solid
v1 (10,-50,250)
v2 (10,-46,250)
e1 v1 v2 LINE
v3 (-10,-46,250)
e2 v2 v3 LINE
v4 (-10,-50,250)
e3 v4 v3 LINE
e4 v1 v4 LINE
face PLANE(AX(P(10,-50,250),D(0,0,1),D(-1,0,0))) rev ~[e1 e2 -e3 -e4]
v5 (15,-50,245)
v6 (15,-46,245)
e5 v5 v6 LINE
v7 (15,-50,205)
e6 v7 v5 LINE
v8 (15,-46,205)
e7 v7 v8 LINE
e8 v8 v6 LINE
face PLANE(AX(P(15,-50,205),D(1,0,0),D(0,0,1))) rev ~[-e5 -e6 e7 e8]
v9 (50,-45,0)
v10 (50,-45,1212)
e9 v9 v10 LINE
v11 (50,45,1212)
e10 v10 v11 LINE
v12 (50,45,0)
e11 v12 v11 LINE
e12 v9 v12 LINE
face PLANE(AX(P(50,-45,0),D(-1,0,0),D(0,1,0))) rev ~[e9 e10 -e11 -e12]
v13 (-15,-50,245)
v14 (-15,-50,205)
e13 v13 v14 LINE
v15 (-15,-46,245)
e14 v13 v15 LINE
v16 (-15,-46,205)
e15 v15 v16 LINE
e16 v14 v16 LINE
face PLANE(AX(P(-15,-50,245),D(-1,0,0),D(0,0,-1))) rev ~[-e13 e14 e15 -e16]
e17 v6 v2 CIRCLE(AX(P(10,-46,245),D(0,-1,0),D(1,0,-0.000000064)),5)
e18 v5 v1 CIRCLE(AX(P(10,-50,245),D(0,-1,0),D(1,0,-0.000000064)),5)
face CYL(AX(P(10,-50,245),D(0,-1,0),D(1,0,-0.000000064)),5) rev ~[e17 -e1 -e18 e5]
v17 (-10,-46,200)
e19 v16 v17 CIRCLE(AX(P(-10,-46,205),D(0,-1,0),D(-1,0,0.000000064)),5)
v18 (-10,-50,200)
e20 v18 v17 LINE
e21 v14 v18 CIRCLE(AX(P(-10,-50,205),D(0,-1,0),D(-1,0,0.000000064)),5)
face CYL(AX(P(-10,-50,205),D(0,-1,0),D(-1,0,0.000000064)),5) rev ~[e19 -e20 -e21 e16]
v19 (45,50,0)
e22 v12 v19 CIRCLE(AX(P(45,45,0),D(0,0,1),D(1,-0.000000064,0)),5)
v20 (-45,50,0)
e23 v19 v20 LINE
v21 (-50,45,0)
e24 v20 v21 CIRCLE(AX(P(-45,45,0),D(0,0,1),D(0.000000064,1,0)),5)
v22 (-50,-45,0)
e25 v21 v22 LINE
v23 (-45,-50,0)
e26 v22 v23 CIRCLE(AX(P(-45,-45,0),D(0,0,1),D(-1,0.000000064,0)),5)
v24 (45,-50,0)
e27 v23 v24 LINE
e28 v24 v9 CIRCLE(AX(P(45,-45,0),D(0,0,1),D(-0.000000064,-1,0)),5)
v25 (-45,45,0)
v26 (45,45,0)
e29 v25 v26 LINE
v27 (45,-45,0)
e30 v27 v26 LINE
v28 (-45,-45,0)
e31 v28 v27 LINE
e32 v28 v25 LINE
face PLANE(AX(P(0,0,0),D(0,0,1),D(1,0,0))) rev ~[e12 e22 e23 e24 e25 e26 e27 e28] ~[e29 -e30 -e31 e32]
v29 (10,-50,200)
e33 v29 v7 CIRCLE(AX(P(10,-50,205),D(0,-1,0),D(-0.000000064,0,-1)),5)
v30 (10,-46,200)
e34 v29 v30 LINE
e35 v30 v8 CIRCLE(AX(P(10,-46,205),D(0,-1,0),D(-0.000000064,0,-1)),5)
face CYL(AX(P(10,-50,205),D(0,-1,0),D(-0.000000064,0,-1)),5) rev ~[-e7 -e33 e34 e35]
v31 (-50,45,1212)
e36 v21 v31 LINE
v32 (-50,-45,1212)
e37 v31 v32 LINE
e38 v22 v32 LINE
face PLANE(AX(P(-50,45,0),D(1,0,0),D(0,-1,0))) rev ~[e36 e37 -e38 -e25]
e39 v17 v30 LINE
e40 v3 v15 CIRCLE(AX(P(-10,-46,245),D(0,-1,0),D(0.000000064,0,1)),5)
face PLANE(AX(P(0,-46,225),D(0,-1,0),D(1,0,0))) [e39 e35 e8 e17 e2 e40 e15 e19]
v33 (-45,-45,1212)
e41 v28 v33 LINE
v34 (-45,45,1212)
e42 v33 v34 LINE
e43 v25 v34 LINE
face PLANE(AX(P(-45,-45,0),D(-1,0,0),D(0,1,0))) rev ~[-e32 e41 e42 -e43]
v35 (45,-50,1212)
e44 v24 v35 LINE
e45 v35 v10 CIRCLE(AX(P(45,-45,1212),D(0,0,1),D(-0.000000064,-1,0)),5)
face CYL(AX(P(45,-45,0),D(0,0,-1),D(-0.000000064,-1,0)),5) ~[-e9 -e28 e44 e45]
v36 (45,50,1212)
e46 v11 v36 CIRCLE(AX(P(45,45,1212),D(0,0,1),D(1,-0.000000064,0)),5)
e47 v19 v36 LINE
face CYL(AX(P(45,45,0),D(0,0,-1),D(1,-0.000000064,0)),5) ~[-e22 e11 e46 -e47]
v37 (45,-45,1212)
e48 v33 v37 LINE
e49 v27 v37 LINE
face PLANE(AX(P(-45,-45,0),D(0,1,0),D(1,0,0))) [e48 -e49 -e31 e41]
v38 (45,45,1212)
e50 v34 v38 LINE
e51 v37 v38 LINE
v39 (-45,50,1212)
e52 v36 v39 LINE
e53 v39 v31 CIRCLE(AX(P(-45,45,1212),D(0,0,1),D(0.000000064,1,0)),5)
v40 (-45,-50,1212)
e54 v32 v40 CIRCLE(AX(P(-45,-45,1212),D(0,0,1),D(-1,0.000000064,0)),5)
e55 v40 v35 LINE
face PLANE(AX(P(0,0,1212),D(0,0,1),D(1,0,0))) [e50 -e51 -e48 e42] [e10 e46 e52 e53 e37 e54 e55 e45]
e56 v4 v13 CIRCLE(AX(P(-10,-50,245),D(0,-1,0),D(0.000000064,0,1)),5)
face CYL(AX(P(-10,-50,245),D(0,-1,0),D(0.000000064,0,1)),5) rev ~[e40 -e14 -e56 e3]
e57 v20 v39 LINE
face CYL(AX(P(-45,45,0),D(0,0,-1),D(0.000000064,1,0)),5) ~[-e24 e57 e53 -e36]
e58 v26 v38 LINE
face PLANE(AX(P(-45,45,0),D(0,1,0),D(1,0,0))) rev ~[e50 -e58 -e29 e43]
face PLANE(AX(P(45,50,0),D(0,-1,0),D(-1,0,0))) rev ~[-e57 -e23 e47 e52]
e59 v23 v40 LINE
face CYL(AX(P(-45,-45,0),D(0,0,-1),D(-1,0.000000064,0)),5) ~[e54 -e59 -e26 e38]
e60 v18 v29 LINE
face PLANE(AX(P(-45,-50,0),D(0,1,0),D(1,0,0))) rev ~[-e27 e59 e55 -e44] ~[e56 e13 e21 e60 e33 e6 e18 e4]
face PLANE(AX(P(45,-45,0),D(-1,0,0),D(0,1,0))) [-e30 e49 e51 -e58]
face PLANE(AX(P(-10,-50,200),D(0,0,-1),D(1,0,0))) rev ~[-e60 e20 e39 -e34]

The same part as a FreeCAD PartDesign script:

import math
import FreeCAD as App
import Part
import Sketcher
from FreeCAD import Vector

doc = App.newDocument("Part")
body = doc.addObject("PartDesign::Body", "Body")

sketch1 = body.newObject("Sketcher::SketchObject", "Sketch")
sketch1.AttachmentSupport = (doc.getObject("XY_Plane"), [""])
sketch1.MapMode = "FlatFace"
sketch1.addGeometry([
    Part.ArcOfCircle(Part.Circle(Vector(45, 45, 0), Vector(0, 0, 1), 5), math.radians(0), math.radians(90)),
    Part.LineSegment(Vector(45, 50, 0), Vector(-45, 50, 0)),
    Part.ArcOfCircle(Part.Circle(Vector(-45, 45, 0), Vector(0, 0, 1), 5), math.radians(90), math.radians(180)),
    Part.LineSegment(Vector(-50, 45, 0), Vector(-50, -45, 0)),
    Part.ArcOfCircle(Part.Circle(Vector(-45, -45, 0), Vector(0, 0, 1), 5), math.radians(180), math.radians(270)),
    Part.LineSegment(Vector(-45, -50, 0), Vector(45, -50, 0)),
    Part.ArcOfCircle(Part.Circle(Vector(45, -45, 0), Vector(0, 0, 1), 5), math.radians(-90), math.radians(0)),
    Part.LineSegment(Vector(50, -45, 0), Vector(50, 45, 0)),
    Part.LineSegment(Vector(45, -45, 0), Vector(-45, -45, 0)),
    Part.LineSegment(Vector(-45, -45, 0), Vector(-45, 45, 0)),
    Part.LineSegment(Vector(-45, 45, 0), Vector(45, 45, 0)),
    Part.LineSegment(Vector(45, 45, 0), Vector(45, -45, 0)),
], False)
sketch1.addConstraint([
    Sketcher.Constraint("Tangent", 0, 2, 1, 1),
    Sketcher.Constraint("Tangent", 1, 2, 2, 1),
    Sketcher.Constraint("Tangent", 2, 2, 3, 1),
    Sketcher.Constraint("Tangent", 3, 2, 4, 1),
    Sketcher.Constraint("Tangent", 4, 2, 5, 1),
    Sketcher.Constraint("Tangent", 5, 2, 6, 1),
    Sketcher.Constraint("Tangent", 6, 2, 7, 1),
    Sketcher.Constraint("Tangent", 7, 2, 0, 1),
    Sketcher.Constraint("Coincident", 8, 2, 9, 1),
    Sketcher.Constraint("Coincident", 9, 2, 10, 1),
    Sketcher.Constraint("Coincident", 10, 2, 11, 1),
    Sketcher.Constraint("Coincident", 11, 2, 8, 1),
    Sketcher.Constraint("Horizontal", 1),
    Sketcher.Constraint("Vertical", 3),
    Sketcher.Constraint("Horizontal", 5),
    Sketcher.Constraint("Vertical", 7),
    Sketcher.Constraint("Horizontal", 8),
    Sketcher.Constraint("Vertical", 9),
    Sketcher.Constraint("Horizontal", 10),
    Sketcher.Constraint("Vertical", 11),
    Sketcher.Constraint("Coincident", 8, 2, 4, 3),
    Sketcher.Constraint("Coincident", 9, 2, 2, 3),
    Sketcher.Constraint("Coincident", 10, 2, 0, 3),
    Sketcher.Constraint("Equal", 4, 6),
    Sketcher.Constraint("Symmetric", 0, 3, 4, 3, -1, 1),
    Sketcher.Constraint("Equal", 10, 3),
    Sketcher.Constraint("Radius", 0, 5.0),
    Sketcher.Constraint("DistanceX", 1, 2, 1, 1, 90.0),
])
pad1 = body.newObject("PartDesign::Pad", "Pad")
pad1.Profile = sketch1
pad1.Length = 1212

sketch2 = body.newObject("Sketcher::SketchObject", "Sketch001")
sketch2.AttachmentSupport = (doc.getObject("XZ_Plane"), [""])
sketch2.MapMode = "FlatFace"
sketch2.AttachmentOffset = App.Placement(Vector(0, 0, 50), App.Rotation())
sketch2.addGeometry([
    Part.ArcOfCircle(Part.Circle(Vector(-10, 205, 0), Vector(0, 0, 1), 5), math.radians(180), math.radians(270)),
    Part.LineSegment(Vector(-10, 200, 0), Vector(10, 200, 0)),
    Part.ArcOfCircle(Part.Circle(Vector(10, 205, 0), Vector(0, 0, 1), 5), math.radians(-90), math.radians(0)),
    Part.LineSegment(Vector(15, 205, 0), Vector(15, 245, 0)),
    Part.ArcOfCircle(Part.Circle(Vector(10, 245, 0), Vector(0, 0, 1), 5), math.radians(0), math.radians(90)),
    Part.LineSegment(Vector(10, 250, 0), Vector(-10, 250, 0)),
    Part.ArcOfCircle(Part.Circle(Vector(-10, 245, 0), Vector(0, 0, 1), 5), math.radians(90), math.radians(180)),
    Part.LineSegment(Vector(-15, 245, 0), Vector(-15, 205, 0)),
], False)
sketch2.addConstraint([
    Sketcher.Constraint("Tangent", 0, 2, 1, 1),
    Sketcher.Constraint("Tangent", 1, 2, 2, 1),
    Sketcher.Constraint("Tangent", 2, 2, 3, 1),
    Sketcher.Constraint("Tangent", 3, 2, 4, 1),
    Sketcher.Constraint("Tangent", 4, 2, 5, 1),
    Sketcher.Constraint("Tangent", 5, 2, 6, 1),
    Sketcher.Constraint("Tangent", 6, 2, 7, 1),
    Sketcher.Constraint("Tangent", 7, 2, 0, 1),
    Sketcher.Constraint("Horizontal", 1),
    Sketcher.Constraint("Vertical", 3),
    Sketcher.Constraint("Horizontal", 5),
    Sketcher.Constraint("Vertical", 7),
    Sketcher.Constraint("Equal", 0, 2),
    Sketcher.Constraint("Equal", 2, 4),
    Sketcher.Constraint("Equal", 4, 6),
    Sketcher.Constraint("Radius", 0, 5.0),
    Sketcher.Constraint("DistanceX", 1, 1, 1, 2, 20.0),
    Sketcher.Constraint("DistanceY", 3, 1, 3, 2, 40.0),
    Sketcher.Constraint("DistanceX", 0, 3, -1, 1, 10.0),
    Sketcher.Constraint("DistanceY", -1, 1, 0, 3, 205.0),
])
pocket1 = body.newObject("PartDesign::Pocket", "Pocket")
pocket1.Profile = sketch2
pocket1.Length = 4

doc.recompute()
